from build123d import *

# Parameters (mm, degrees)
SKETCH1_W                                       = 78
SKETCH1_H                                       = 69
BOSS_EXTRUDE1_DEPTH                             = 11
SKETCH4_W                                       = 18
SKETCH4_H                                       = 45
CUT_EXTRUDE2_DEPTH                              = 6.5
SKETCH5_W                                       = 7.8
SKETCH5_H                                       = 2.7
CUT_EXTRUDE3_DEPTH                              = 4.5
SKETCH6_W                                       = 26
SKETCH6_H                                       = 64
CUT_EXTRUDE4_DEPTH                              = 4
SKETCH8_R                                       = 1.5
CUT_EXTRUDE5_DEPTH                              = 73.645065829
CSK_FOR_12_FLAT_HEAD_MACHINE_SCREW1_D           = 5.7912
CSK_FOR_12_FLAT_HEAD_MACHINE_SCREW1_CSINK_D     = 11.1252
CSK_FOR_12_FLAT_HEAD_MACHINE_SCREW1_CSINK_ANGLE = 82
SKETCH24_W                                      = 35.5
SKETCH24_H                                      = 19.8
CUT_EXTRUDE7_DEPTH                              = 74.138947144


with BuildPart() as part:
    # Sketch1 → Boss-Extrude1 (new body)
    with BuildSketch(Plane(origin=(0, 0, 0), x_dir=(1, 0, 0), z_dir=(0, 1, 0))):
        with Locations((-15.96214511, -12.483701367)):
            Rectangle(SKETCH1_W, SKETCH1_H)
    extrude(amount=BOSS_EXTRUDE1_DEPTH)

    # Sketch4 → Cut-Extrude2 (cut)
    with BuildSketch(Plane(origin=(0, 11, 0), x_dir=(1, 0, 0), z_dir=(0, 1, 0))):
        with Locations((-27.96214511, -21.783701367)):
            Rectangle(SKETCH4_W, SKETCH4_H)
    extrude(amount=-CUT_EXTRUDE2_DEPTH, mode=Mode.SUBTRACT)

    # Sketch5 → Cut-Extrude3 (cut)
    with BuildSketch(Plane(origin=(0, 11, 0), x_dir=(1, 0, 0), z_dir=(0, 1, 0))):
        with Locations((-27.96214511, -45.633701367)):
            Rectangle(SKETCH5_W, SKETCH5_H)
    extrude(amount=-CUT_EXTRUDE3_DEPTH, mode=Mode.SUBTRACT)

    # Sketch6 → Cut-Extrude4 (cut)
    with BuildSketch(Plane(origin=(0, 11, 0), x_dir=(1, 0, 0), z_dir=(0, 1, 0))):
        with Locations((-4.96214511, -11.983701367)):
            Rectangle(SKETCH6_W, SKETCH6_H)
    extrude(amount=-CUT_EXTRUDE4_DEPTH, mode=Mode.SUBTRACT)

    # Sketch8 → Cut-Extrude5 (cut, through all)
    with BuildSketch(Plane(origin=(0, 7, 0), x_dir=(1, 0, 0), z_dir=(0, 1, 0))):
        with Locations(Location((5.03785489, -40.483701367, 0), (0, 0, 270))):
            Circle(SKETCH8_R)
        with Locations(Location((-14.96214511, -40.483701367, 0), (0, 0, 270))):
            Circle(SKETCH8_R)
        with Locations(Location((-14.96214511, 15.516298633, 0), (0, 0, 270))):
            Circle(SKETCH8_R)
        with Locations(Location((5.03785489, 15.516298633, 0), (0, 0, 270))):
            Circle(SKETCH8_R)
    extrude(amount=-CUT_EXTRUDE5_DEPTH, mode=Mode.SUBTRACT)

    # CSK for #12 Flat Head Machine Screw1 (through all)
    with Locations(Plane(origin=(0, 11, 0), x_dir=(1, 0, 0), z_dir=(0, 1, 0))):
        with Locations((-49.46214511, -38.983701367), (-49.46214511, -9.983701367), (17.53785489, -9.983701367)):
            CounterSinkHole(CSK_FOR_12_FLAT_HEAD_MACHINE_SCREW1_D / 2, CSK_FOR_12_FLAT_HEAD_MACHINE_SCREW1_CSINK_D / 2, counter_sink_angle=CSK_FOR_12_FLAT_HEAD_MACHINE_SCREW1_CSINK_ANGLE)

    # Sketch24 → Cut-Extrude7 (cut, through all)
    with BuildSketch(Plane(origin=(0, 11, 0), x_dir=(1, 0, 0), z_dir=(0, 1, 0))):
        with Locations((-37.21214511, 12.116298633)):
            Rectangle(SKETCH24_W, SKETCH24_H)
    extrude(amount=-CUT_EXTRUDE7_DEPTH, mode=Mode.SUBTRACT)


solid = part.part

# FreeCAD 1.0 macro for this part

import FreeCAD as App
import Part
import Sketcher

V = App.Vector


def add_polygon(sketch, points):
    """Adds a closed chain of lines whose ends are joined by coincident constraints."""
    first, n = sketch.GeometryCount, len(points)
    for a, b in zip(points, points[1:] + points[:1]):
        sketch.addGeometry(Part.LineSegment(App.Vector(*a, 0), App.Vector(*b, 0)), False)
    for i in range(n):
        sketch.addConstraint(Sketcher.Constraint("Coincident", first + i, 2, first + (i + 1) % n, 1))

doc = App.newDocument("Part")
body = doc.addObject("PartDesign::Body", "Body")

# Sketch on XZ plane
sketch1 = doc.addObject("Sketcher::SketchObject", "Sketch")
body.addObject(sketch1)
sketch1.AttachmentSupport = (doc.XZ_Plane, [""])
sketch1.MapMode = "FlatFace"
add_polygon(sketch1, [(-55, -22), (-55, 47), (23, 47), (23, -22)])  # lines 0-3
sketch1.addConstraint(Sketcher.Constraint("Vertical", 0))
sketch1.addConstraint(Sketcher.Constraint("Horizontal", 1))
sketch1.addConstraint(Sketcher.Constraint("Vertical", 2))
sketch1.addConstraint(Sketcher.Constraint("Horizontal", 3))
sketch1.addConstraint(Sketcher.Constraint("DistanceX", 1, 1, 1, 2, 78.0))
sketch1.addConstraint(Sketcher.Constraint("DistanceY", 0, 1, 0, 2, 69.0))
sketch1.addConstraint(Sketcher.Constraint("DistanceY", -1, 1, 0, 2, 46.983701))
sketch1.addConstraint(Sketcher.Constraint("DistanceX", 0, 2, -1, 1, 54.962145))
pad1 = doc.addObject("PartDesign::Pad", "Pad")
body.addObject(pad1)
pad1.Profile = sketch1
pad1.Length = 11
pad1.Reversed = True

# Sketch on XZ plane
sketch2 = doc.addObject("Sketcher::SketchObject", "Sketch001")
body.addObject(sketch2)
sketch2.AttachmentSupport = (doc.XZ_Plane, [""])
sketch2.MapMode = "FlatFace"
sketch2.AttachmentOffset = App.Placement(V(0, 0, -11), App.Rotation())
add_polygon(sketch2, [(-37, -1), (-37, 44), (-19, 44), (-19, -1)])  # lines 0-3
sketch2.addConstraint(Sketcher.Constraint("Vertical", 0))
sketch2.addConstraint(Sketcher.Constraint("Horizontal", 1))
sketch2.addConstraint(Sketcher.Constraint("Vertical", 2))
sketch2.addConstraint(Sketcher.Constraint("Horizontal", 3))
sketch2.addConstraint(Sketcher.Constraint("DistanceX", 1, 1, 1, 2, 18.0))
sketch2.addConstraint(Sketcher.Constraint("DistanceY", 0, 1, 0, 2, 45.0))
sketch2.addConstraint(Sketcher.Constraint("DistanceY", -1, 1, 0, 2, 44.283701))
sketch2.addConstraint(Sketcher.Constraint("DistanceX", 0, 2, -1, 1, 36.962145))
pocket1 = doc.addObject("PartDesign::Pocket", "Pocket")
body.addObject(pocket1)
pocket1.Profile = sketch2
pocket1.Length = 6.5
pocket1.Reversed = True

# Sketch on XZ plane
sketch3 = doc.addObject("Sketcher::SketchObject", "Sketch002")
body.addObject(sketch3)
sketch3.AttachmentSupport = (doc.XZ_Plane, [""])
sketch3.MapMode = "FlatFace"
sketch3.AttachmentOffset = App.Placement(V(0, 0, -11), App.Rotation())
add_polygon(sketch3, [(-31.9, 44.3), (-31.9, 47), (-24.1, 47), (-24.1, 44.3)])  # lines 0-3
sketch3.addConstraint(Sketcher.Constraint("Vertical", 0))
sketch3.addConstraint(Sketcher.Constraint("Horizontal", 1))
sketch3.addConstraint(Sketcher.Constraint("Vertical", 2))
sketch3.addConstraint(Sketcher.Constraint("Horizontal", 3))
sketch3.addConstraint(Sketcher.Constraint("DistanceX", 1, 1, 1, 2, 7.8))
sketch3.addConstraint(Sketcher.Constraint("DistanceY", 0, 1, 0, 2, 2.7))
sketch3.addConstraint(Sketcher.Constraint("DistanceY", -1, 1, 0, 2, 46.983701))
sketch3.addConstraint(Sketcher.Constraint("DistanceX", 0, 2, -1, 1, 31.862145))
pocket2 = doc.addObject("PartDesign::Pocket", "Pocket001")
body.addObject(pocket2)
pocket2.Profile = sketch3
pocket2.Length = 4.5
pocket2.Reversed = True

# Sketch on XZ plane
sketch4 = doc.addObject("Sketcher::SketchObject", "Sketch003")
body.addObject(sketch4)
sketch4.AttachmentSupport = (doc.XZ_Plane, [""])
sketch4.MapMode = "FlatFace"
sketch4.AttachmentOffset = App.Placement(V(0, 0, -11), App.Rotation())
add_polygon(sketch4, [(-18, -20), (-18, 44), (8, 44), (8, -20)])  # lines 0-3
sketch4.addConstraint(Sketcher.Constraint("Vertical", 0))
sketch4.addConstraint(Sketcher.Constraint("Horizontal", 1))
sketch4.addConstraint(Sketcher.Constraint("Vertical", 2))
sketch4.addConstraint(Sketcher.Constraint("Horizontal", 3))
sketch4.addConstraint(Sketcher.Constraint("DistanceX", 1, 1, 1, 2, 26.0))
sketch4.addConstraint(Sketcher.Constraint("DistanceY", 0, 1, 0, 2, 64.0))
sketch4.addConstraint(Sketcher.Constraint("DistanceY", -1, 1, 0, 2, 43.983701))
sketch4.addConstraint(Sketcher.Constraint("DistanceX", 0, 2, -1, 1, 17.962145))
pocket3 = doc.addObject("PartDesign::Pocket", "Pocket002")
body.addObject(pocket3)
pocket3.Profile = sketch4
pocket3.Length = 4
pocket3.Reversed = True

# Sketch on XZ plane
sketch5 = doc.addObject("Sketcher::SketchObject", "Sketch004")
body.addObject(sketch5)
sketch5.AttachmentSupport = (doc.XZ_Plane, [""])
sketch5.MapMode = "FlatFace"
sketch5.AttachmentOffset = App.Placement(V(0, 0, -7), App.Rotation())
sketch5.addGeometry(Part.Circle(V(5, 40.5, 0), V(0, 0, 1), 1.5), False)
sketch5.addGeometry(Part.Circle(V(-15, 40.5, 0), V(0, 0, 1), 1.5), False)
sketch5.addGeometry(Part.Circle(V(-15, -15.5, 0), V(0, 0, 1), 1.5), False)
sketch5.addGeometry(Part.Circle(V(5, -15.5, 0), V(0, 0, 1), 1.5), False)
sketch5.addConstraint(Sketcher.Constraint("Equal", 0, 1))
sketch5.addConstraint(Sketcher.Constraint("Equal", 1, 2))
sketch5.addConstraint(Sketcher.Constraint("Equal", 2, 3))
sketch5.addConstraint(Sketcher.Constraint("Horizontal", 0, 3, 1, 3))
sketch5.addConstraint(Sketcher.Constraint("Horizontal", 2, 3, 3, 3))
sketch5.addConstraint(Sketcher.Constraint("Vertical", 1, 3, 2, 3))
sketch5.addConstraint(Sketcher.Constraint("Vertical", 0, 3, 3, 3))
sketch5.addConstraint(Sketcher.Constraint("Diameter", 0, 3.0))
sketch5.addConstraint(Sketcher.Constraint("DistanceX", 1, 3, 0, 3, 20.0))
sketch5.addConstraint(Sketcher.Constraint("DistanceY", 2, 3, 1, 3, 56.0))
sketch5.addConstraint(Sketcher.Constraint("DistanceY", -1, 1, 0, 3, 40.483701))
sketch5.addConstraint(Sketcher.Constraint("DistanceX", -1, 1, 0, 3, 5.037855))
pocket4 = doc.addObject("PartDesign::Pocket", "Pocket003")
body.addObject(pocket4)
pocket4.Profile = sketch5
pocket4.Type = "ThroughAll"
pocket4.Reversed = True

# Sketch on XZ plane
sketch6 = doc.addObject("Sketcher::SketchObject", "Sketch005")
body.addObject(sketch6)
sketch6.AttachmentSupport = (doc.XZ_Plane, [""])
sketch6.MapMode = "FlatFace"
sketch6.AttachmentOffset = App.Placement(V(0, 0, -11), App.Rotation())
sketch6.addGeometry(Part.Circle(V(-49.5, 39, 0), V(0, 0, 1), 2.9), False)
sketch6.addGeometry(Part.Circle(V(-49.5, 10, 0), V(0, 0, 1), 2.9), False)
sketch6.addGeometry(Part.Circle(V(17.5, 10, 0), V(0, 0, 1), 2.9), False)
sketch6.addConstraint(Sketcher.Constraint("Equal", 0, 1))
sketch6.addConstraint(Sketcher.Constraint("Equal", 1, 2))
sketch6.addConstraint(Sketcher.Constraint("Horizontal", 1, 3, 2, 3))
sketch6.addConstraint(Sketcher.Constraint("Vertical", 0, 3, 1, 3))
sketch6.addConstraint(Sketcher.Constraint("DistanceY", 1, 3, 0, 3, 29.0))
sketch6.addConstraint(Sketcher.Constraint("DistanceX", 1, 3, 2, 3, 67.0))
sketch6.addConstraint(Sketcher.Constraint("Diameter", 0, 5.7912))
sketch6.addConstraint(Sketcher.Constraint("DistanceY", -1, 1, 0, 3, 38.983701))
sketch6.addConstraint(Sketcher.Constraint("DistanceX", 0, 3, -1, 1, 49.462145))
doc.recompute()
hole = doc.addObject("PartDesign::Hole", "Hole")
body.addObject(hole)
hole.Profile = sketch6
hole.ThreadType = "None"
hole.Diameter = 5.7912
hole.DepthType = "ThroughAll"
hole.HoleCutType = "Countersink"
hole.HoleCutDiameter = 11.1252
hole.HoleCutCountersinkAngle = 82
hole.Reversed = True

# Sketch on XZ plane
sketch7 = doc.addObject("Sketcher::SketchObject", "Sketch006")
body.addObject(sketch7)
sketch7.AttachmentSupport = (doc.XZ_Plane, [""])
sketch7.MapMode = "FlatFace"
sketch7.AttachmentOffset = App.Placement(V(0, 0, -11), App.Rotation())
add_polygon(sketch7, [(-55, -22), (-55, -2), (-19, -2), (-19, -22)])  # lines 0-3
sketch7.addConstraint(Sketcher.Constraint("Vertical", 0))
sketch7.addConstraint(Sketcher.Constraint("Horizontal", 1))
sketch7.addConstraint(Sketcher.Constraint("Vertical", 2))
sketch7.addConstraint(Sketcher.Constraint("Horizontal", 3))
sketch7.addConstraint(Sketcher.Constraint("DistanceX", 1, 1, 1, 2, 35.5))
sketch7.addConstraint(Sketcher.Constraint("DistanceY", 0, 1, 0, 2, 19.8))
sketch7.addConstraint(Sketcher.Constraint("DistanceY", 0, 2, -1, 1, 2.216299))
sketch7.addConstraint(Sketcher.Constraint("DistanceX", 0, 2, -1, 1, 54.962145))
pocket5 = doc.addObject("PartDesign::Pocket", "Pocket004")
body.addObject(pocket5)
pocket5.Profile = sketch7
pocket5.Type = "ThroughAll"
pocket5.Reversed = True

doc.recompute()
